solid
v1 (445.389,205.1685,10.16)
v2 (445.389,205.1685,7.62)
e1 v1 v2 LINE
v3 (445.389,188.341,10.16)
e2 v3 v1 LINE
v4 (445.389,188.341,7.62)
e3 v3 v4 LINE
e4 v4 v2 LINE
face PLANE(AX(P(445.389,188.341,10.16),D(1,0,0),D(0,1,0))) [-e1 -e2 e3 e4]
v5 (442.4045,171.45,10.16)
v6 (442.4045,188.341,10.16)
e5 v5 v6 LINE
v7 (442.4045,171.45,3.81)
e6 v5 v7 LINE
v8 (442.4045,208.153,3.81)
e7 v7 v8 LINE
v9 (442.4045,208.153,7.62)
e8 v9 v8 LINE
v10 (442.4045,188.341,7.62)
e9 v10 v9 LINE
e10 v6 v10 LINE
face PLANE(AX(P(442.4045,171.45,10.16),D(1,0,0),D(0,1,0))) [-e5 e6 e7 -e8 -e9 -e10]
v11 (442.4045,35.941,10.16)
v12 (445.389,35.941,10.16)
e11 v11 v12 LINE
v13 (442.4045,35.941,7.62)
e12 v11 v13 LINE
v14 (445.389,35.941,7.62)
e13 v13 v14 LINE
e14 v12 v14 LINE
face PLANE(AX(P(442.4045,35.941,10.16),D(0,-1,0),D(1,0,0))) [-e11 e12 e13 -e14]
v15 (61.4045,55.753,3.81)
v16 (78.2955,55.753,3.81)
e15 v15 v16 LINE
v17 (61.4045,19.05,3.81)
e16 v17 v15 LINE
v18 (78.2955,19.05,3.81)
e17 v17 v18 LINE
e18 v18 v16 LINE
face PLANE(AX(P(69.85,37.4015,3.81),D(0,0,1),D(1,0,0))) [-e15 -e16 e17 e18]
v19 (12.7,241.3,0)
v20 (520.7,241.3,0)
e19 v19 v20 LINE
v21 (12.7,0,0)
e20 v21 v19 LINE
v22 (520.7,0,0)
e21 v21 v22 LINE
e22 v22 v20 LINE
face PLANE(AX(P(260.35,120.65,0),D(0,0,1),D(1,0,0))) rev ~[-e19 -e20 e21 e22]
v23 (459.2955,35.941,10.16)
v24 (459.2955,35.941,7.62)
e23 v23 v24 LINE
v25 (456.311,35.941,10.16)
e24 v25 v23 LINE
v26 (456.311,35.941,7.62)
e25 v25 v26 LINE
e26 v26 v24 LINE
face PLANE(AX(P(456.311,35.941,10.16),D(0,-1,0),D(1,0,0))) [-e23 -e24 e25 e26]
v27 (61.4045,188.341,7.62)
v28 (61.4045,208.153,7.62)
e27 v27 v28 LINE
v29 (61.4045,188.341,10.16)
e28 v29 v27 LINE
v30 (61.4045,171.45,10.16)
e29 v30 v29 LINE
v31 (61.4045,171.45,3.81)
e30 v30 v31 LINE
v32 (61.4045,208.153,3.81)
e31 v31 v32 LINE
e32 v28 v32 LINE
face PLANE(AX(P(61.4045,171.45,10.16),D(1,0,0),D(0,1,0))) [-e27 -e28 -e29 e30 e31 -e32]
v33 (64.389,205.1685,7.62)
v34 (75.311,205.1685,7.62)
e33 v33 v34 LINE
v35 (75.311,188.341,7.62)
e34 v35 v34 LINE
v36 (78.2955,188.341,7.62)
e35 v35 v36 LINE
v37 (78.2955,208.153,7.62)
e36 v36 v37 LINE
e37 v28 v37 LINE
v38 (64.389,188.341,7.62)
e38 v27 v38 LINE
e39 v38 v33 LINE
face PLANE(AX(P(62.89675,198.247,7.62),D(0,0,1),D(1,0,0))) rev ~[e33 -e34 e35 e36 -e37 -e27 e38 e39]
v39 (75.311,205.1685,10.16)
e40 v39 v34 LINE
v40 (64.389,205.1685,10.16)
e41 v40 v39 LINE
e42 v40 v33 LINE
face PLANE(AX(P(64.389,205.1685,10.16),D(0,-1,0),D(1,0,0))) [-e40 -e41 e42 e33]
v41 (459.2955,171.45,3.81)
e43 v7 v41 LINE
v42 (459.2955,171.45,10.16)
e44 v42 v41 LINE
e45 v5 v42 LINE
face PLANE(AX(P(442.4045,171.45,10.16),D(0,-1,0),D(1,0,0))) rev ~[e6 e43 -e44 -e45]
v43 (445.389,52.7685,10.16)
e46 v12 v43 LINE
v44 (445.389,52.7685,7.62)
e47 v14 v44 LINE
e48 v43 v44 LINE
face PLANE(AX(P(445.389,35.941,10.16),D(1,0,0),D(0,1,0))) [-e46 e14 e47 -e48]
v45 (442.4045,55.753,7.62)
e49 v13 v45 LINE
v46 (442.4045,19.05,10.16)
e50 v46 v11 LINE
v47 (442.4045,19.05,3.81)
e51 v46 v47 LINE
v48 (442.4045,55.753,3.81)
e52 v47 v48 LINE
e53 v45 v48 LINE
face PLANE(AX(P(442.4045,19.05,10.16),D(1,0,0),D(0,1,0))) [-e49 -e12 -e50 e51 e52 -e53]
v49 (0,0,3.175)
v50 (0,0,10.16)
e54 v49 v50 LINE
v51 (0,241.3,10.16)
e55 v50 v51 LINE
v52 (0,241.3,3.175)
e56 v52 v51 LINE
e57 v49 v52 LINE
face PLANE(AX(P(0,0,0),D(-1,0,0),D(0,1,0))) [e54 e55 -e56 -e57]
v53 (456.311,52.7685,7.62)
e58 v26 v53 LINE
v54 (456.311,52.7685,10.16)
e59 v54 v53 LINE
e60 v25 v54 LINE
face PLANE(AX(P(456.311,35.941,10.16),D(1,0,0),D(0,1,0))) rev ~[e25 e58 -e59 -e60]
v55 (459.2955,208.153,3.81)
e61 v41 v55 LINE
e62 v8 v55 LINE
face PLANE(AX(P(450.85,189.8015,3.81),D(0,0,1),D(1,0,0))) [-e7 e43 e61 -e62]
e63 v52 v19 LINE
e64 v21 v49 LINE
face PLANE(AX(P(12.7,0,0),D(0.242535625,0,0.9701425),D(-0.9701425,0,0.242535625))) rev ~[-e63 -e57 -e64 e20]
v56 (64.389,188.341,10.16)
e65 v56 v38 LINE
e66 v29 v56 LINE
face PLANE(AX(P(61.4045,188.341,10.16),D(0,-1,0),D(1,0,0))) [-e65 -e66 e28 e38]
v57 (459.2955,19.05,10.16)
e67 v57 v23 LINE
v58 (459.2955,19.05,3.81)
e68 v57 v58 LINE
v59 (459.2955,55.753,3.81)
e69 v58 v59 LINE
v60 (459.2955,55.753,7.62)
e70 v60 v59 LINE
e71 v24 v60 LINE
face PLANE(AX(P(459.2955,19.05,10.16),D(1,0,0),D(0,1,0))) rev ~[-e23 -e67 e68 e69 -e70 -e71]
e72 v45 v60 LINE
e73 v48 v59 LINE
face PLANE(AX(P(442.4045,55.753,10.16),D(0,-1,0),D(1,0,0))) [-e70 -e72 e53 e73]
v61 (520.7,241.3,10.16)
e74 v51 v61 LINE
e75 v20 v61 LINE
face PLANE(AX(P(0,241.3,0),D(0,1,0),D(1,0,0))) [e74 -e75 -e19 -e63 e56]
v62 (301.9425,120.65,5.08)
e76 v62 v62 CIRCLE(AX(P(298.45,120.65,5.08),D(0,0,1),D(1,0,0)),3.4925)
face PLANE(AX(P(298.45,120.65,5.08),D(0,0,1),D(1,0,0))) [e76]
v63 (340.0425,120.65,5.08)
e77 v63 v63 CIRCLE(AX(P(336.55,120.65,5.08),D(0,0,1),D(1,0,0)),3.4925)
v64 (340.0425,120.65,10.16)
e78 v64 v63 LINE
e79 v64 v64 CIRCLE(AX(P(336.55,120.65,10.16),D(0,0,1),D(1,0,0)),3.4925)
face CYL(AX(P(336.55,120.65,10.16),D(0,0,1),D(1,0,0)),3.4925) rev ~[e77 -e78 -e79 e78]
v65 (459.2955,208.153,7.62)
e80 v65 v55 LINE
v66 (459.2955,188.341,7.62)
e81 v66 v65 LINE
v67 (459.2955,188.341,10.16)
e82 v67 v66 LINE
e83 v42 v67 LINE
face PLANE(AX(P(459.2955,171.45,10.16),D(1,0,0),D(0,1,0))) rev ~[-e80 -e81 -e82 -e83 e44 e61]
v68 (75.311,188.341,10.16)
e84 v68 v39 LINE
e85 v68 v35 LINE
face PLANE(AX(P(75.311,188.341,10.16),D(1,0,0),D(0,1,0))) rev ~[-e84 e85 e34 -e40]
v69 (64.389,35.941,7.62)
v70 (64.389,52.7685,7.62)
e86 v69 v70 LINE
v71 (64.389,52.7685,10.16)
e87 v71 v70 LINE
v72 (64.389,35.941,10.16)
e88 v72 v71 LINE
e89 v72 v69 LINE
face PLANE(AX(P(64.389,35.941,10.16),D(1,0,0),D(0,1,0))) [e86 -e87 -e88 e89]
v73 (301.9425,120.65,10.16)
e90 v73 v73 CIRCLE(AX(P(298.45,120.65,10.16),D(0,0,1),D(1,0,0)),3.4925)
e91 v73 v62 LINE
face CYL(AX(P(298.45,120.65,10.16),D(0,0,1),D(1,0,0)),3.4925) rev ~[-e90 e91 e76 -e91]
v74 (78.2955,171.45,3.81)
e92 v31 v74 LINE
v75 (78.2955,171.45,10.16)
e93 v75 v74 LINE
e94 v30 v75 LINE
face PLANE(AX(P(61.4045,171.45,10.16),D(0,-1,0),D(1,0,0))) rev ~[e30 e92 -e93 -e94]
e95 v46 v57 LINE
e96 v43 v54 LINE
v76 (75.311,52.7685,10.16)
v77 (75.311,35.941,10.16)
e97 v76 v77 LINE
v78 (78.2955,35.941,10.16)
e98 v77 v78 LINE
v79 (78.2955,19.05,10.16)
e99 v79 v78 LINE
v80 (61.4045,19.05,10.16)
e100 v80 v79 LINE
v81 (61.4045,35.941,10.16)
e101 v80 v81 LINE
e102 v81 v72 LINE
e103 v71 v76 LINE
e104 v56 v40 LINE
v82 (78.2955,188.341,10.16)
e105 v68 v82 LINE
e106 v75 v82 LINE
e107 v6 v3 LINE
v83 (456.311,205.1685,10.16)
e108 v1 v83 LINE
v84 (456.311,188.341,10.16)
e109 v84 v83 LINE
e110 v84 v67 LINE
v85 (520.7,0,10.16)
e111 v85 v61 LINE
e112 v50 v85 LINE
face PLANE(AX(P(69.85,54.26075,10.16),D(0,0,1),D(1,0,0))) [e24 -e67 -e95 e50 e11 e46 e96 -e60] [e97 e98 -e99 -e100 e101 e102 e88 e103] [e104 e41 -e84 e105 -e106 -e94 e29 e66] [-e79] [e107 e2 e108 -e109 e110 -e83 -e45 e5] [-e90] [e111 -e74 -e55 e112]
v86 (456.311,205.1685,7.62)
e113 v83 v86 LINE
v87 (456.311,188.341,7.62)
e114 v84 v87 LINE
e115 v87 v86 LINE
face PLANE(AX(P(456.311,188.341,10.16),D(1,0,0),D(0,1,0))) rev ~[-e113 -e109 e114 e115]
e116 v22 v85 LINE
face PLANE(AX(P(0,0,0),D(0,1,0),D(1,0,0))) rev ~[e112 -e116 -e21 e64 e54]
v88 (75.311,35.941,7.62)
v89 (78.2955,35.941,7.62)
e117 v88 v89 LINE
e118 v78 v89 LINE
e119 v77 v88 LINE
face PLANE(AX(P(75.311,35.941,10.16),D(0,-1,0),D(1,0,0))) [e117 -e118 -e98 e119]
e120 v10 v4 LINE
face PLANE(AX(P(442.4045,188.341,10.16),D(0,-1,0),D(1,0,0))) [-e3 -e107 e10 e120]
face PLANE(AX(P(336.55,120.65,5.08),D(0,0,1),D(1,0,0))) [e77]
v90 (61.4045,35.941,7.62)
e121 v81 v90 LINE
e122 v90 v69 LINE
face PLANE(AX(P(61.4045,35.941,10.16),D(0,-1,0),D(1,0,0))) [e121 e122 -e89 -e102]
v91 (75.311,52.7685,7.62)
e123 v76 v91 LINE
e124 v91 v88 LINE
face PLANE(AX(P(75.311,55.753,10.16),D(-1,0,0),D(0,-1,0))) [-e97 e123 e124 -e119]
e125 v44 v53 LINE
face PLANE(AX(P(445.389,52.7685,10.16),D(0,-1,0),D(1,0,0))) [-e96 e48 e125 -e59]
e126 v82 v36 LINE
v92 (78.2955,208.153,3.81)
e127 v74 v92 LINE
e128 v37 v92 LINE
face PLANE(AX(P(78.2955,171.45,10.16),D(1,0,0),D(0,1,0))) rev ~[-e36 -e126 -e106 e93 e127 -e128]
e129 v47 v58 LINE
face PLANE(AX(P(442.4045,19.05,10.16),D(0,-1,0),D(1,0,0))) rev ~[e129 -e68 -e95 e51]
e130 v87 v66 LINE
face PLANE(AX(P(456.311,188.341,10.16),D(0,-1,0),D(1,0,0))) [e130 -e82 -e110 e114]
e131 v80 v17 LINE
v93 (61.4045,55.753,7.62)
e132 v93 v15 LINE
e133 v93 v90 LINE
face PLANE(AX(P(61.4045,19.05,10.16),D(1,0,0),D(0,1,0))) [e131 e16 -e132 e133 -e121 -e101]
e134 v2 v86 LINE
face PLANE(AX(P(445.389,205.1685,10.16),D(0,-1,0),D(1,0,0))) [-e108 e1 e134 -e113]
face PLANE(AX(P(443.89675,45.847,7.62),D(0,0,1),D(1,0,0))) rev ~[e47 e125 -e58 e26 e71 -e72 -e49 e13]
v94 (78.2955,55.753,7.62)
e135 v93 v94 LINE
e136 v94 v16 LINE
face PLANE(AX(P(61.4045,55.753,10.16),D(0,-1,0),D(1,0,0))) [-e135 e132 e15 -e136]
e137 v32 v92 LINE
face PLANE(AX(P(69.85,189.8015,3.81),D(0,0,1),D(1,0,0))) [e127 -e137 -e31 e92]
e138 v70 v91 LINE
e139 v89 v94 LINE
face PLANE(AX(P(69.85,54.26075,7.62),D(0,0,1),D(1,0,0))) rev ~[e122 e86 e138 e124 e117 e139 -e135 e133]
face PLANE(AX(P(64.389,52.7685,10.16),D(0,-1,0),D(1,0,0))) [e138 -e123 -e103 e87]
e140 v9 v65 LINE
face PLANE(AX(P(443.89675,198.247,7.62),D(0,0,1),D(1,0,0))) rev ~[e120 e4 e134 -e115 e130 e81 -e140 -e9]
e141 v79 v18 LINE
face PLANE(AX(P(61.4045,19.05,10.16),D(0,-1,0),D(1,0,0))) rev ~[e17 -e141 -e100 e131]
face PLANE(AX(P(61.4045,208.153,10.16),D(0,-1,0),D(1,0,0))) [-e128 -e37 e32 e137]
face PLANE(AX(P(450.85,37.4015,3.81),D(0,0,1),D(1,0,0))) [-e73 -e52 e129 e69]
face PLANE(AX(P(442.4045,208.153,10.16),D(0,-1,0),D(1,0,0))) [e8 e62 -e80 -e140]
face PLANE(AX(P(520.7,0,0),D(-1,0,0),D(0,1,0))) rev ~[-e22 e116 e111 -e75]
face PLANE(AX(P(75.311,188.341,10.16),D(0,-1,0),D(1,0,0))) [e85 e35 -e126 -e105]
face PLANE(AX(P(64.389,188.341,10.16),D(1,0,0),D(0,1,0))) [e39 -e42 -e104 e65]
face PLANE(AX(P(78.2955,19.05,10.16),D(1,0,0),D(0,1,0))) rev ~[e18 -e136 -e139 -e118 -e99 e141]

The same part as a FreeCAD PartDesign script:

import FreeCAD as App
import Part
import Sketcher
from FreeCAD import Vector
Q = App.Units.Quantity


def add_polygon(sketch, points):
    """Adds a closed chain of lines whose ends are joined by coincident constraints."""
    first, n = sketch.GeometryCount, len(points)
    for a, b in zip(points, points[1:] + points[:1]):
        sketch.addGeometry(Part.LineSegment(App.Vector(*a, 0), App.Vector(*b, 0)), False)
    for i in range(n):
        sketch.addConstraint(Sketcher.Constraint("Coincident", first + i, 2, first + (i + 1) % n, 1))

doc = App.newDocument("Part")
body = doc.addObject("PartDesign::Body", "Body")

sketch1 = body.newObject("Sketcher::SketchObject", "Sketch")
sketch1.AttachmentSupport = (doc.getObject("XY_Plane"), [""])
sketch1.MapMode = "FlatFace"
add_polygon(sketch1, [(0, 241), (0, 0), (521, 0), (521, 241)])
sketch1.addConstraint(Sketcher.Constraint("Vertical", 0))
sketch1.addConstraint(Sketcher.Constraint("Horizontal", 1))
sketch1.addConstraint(Sketcher.Constraint("Vertical", 2))
sketch1.addConstraint(Sketcher.Constraint("Horizontal", 3))
sketch1.addConstraint(Sketcher.Constraint("Coincident", 0, 2, -1, 1))
sketch1.addConstraint(Sketcher.Constraint("DistanceX", 1, 1, 1, 2, Q("20.5 in")))
sketch1.addConstraint(Sketcher.Constraint("DistanceY", 0, 2, 0, 1, Q("9.5 in")))
pad1 = body.newObject("PartDesign::Pad", "Pad")
pad1.Profile = sketch1
pad1.Length = Q("0.4 in")

sketch2 = body.newObject("Sketcher::SketchObject", "Sketch001")
sketch2.AttachmentSupport = (doc.getObject("XY_Plane"), [""])
sketch2.MapMode = "FlatFace"
sketch2.AttachmentOffset = App.Placement(Vector(0, 0, 0.4 * 25.4), App.Rotation())
add_polygon(sketch2, [(61, 208), (61, 171), (78, 171), (78, 208)])
add_polygon(sketch2, [(61, 56), (61, 19), (78, 19), (78, 56)])
add_polygon(sketch2, [(442, 56), (442, 19), (459, 19), (459, 56)])
add_polygon(sketch2, [(442, 208), (442, 171), (459, 171), (459, 208)])
sketch2.addConstraint(Sketcher.Constraint("Vertical", 0))
sketch2.addConstraint(Sketcher.Constraint("Horizontal", 1))
sketch2.addConstraint(Sketcher.Constraint("Vertical", 2))
sketch2.addConstraint(Sketcher.Constraint("Horizontal", 3))
sketch2.addConstraint(Sketcher.Constraint("Vertical", 4))
sketch2.addConstraint(Sketcher.Constraint("Horizontal", 5))
sketch2.addConstraint(Sketcher.Constraint("Vertical", 6))
sketch2.addConstraint(Sketcher.Constraint("Horizontal", 7))
sketch2.addConstraint(Sketcher.Constraint("Vertical", 8))
sketch2.addConstraint(Sketcher.Constraint("Horizontal", 9))
sketch2.addConstraint(Sketcher.Constraint("Vertical", 10))
sketch2.addConstraint(Sketcher.Constraint("Horizontal", 11))
sketch2.addConstraint(Sketcher.Constraint("Vertical", 12))
sketch2.addConstraint(Sketcher.Constraint("Horizontal", 13))
sketch2.addConstraint(Sketcher.Constraint("Vertical", 14))
sketch2.addConstraint(Sketcher.Constraint("Horizontal", 15))
sketch2.addConstraint(Sketcher.Constraint("Horizontal", 5, 2, 8, 2))
sketch2.addConstraint(Sketcher.Constraint("Horizontal", 7, 2, 10, 2))
sketch2.addConstraint(Sketcher.Constraint("Horizontal", 1, 2, 12, 2))
sketch2.addConstraint(Sketcher.Constraint("Horizontal", 3, 2, 14, 2))
sketch2.addConstraint(Sketcher.Constraint("Vertical", 3, 2, 4, 2))
sketch2.addConstraint(Sketcher.Constraint("Vertical", 2, 2, 5, 2))
sketch2.addConstraint(Sketcher.Constraint("Vertical", 11, 2, 12, 2))
sketch2.addConstraint(Sketcher.Constraint("Vertical", 10, 2, 13, 2))
sketch2.addConstraint(Sketcher.Constraint("Equal", 7, 9))
sketch2.addConstraint(Sketcher.Constraint("Equal", 2, 4))
sketch2.addConstraint(Sketcher.Constraint("DistanceY", 4, 2, 0, 2, Q("6 in")))
sketch2.addConstraint(Sketcher.Constraint("DistanceX", 4, 2, 8, 2, Q("15 in")))
sketch2.addConstraint(Sketcher.Constraint("DistanceX", 1, 1, 1, 2, Q("0.665 in")))
sketch2.addConstraint(Sketcher.Constraint("DistanceY", 0, 2, 0, 1, Q("1.445 in")))
sketch2.addConstraint(Sketcher.Constraint("DistanceY", -1, 1, 0, 2, Q("6.75 in")))
sketch2.addConstraint(Sketcher.Constraint("DistanceX", -1, 1, 0, 2, Q("2.4175 in")))
pocket1 = body.newObject("PartDesign::Pocket", "Pocket")
pocket1.Profile = sketch2
pocket1.Length = Q("0.25 in")

sketch3 = body.newObject("Sketcher::SketchObject", "Sketch002")
sketch3.AttachmentSupport = (doc.getObject("XY_Plane"), [""])
sketch3.MapMode = "FlatFace"
sketch3.AttachmentOffset = App.Placement(Vector(0, 0, 0.4 * 25.4), App.Rotation())
add_polygon(sketch3, [(61.4, 208.2), (61.4, 188.3), (64.4, 188.3), (64.4, 208.2)])
add_polygon(sketch3, [(75.3, 208.2), (75.3, 188.3), (78.3, 188.3), (78.3, 208.2)])
add_polygon(sketch3, [(64.4, 55.8), (61.4, 55.8), (61.4, 35.9), (64.4, 35.9)])
add_polygon(sketch3, [(78.3, 55.8), (75.3, 55.8), (75.3, 35.9), (78.3, 35.9)])
add_polygon(sketch3, [(456.3, 55.8), (456.3, 35.9), (459.3, 35.9), (459.3, 55.8)])
add_polygon(sketch3, [(442.4, 55.8), (442.4, 35.9), (445.4, 35.9), (445.4, 55.8)])
add_polygon(sketch3, [(442.4, 208.2), (442.4, 188.3), (445.4, 188.3), (445.4, 208.2)])
add_polygon(sketch3, [(456.3, 208.2), (456.3, 188.3), (459.3, 188.3), (459.3, 208.2)])
sketch3.addConstraint(Sketcher.Constraint("Vertical", 0))
sketch3.addConstraint(Sketcher.Constraint("Horizontal", 1))
sketch3.addConstraint(Sketcher.Constraint("Vertical", 2))
sketch3.addConstraint(Sketcher.Constraint("Horizontal", 3))
sketch3.addConstraint(Sketcher.Constraint("Vertical", 4))
sketch3.addConstraint(Sketcher.Constraint("Horizontal", 5))
sketch3.addConstraint(Sketcher.Constraint("Vertical", 6))
sketch3.addConstraint(Sketcher.Constraint("Horizontal", 7))
sketch3.addConstraint(Sketcher.Constraint("Horizontal", 8))
sketch3.addConstraint(Sketcher.Constraint("Vertical", 9))
sketch3.addConstraint(Sketcher.Constraint("Horizontal", 10))
sketch3.addConstraint(Sketcher.Constraint("Vertical", 11))
sketch3.addConstraint(Sketcher.Constraint("Horizontal", 12))
sketch3.addConstraint(Sketcher.Constraint("Vertical", 13))
sketch3.addConstraint(Sketcher.Constraint("Horizontal", 14))
sketch3.addConstraint(Sketcher.Constraint("Vertical", 15))
sketch3.addConstraint(Sketcher.Constraint("Vertical", 16))
sketch3.addConstraint(Sketcher.Constraint("Horizontal", 17))
sketch3.addConstraint(Sketcher.Constraint("Vertical", 18))
sketch3.addConstraint(Sketcher.Constraint("Horizontal", 19))
sketch3.addConstraint(Sketcher.Constraint("Vertical", 20))
sketch3.addConstraint(Sketcher.Constraint("Horizontal", 21))
sketch3.addConstraint(Sketcher.Constraint("Vertical", 22))
sketch3.addConstraint(Sketcher.Constraint("Horizontal", 23))
sketch3.addConstraint(Sketcher.Constraint("Vertical", 24))
sketch3.addConstraint(Sketcher.Constraint("Horizontal", 25))
sketch3.addConstraint(Sketcher.Constraint("Vertical", 26))
sketch3.addConstraint(Sketcher.Constraint("Horizontal", 27))
sketch3.addConstraint(Sketcher.Constraint("Vertical", 28))
sketch3.addConstraint(Sketcher.Constraint("Horizontal", 29))
sketch3.addConstraint(Sketcher.Constraint("Vertical", 30))
sketch3.addConstraint(Sketcher.Constraint("Horizontal", 31))
sketch3.addConstraint(Sketcher.Constraint("Horizontal", 1, 2, 4, 2))
sketch3.addConstraint(Sketcher.Constraint("Horizontal", 3, 2, 6, 2))
sketch3.addConstraint(Sketcher.Constraint("Horizontal", 11, 2, 12, 2))
sketch3.addConstraint(Sketcher.Constraint("Horizontal", 10, 2, 13, 2))
sketch3.addConstraint(Sketcher.Constraint("Horizontal", 14, 2, 16, 2))
sketch3.addConstraint(Sketcher.Constraint("Horizontal", 15, 2, 18, 2))
sketch3.addConstraint(Sketcher.Constraint("Horizontal", 17, 2, 20, 2))
sketch3.addConstraint(Sketcher.Constraint("Horizontal", 19, 2, 22, 2))
sketch3.addConstraint(Sketcher.Constraint("Horizontal", 5, 2, 24, 2))
sketch3.addConstraint(Sketcher.Constraint("Horizontal", 7, 2, 26, 2))
sketch3.addConstraint(Sketcher.Constraint("Horizontal", 25, 2, 28, 2))
sketch3.addConstraint(Sketcher.Constraint("Horizontal", 27, 2, 30, 2))
sketch3.addConstraint(Sketcher.Constraint("Vertical", 3, 2, 8, 2))
sketch3.addConstraint(Sketcher.Constraint("Vertical", 2, 2, 10, 2))
sketch3.addConstraint(Sketcher.Constraint("Vertical", 7, 2, 12, 2))
sketch3.addConstraint(Sketcher.Constraint("Vertical", 6, 2, 14, 2))
sketch3.addConstraint(Sketcher.Constraint("Vertical", 23, 2, 24, 2))
sketch3.addConstraint(Sketcher.Constraint("Vertical", 22, 2, 25, 2))
sketch3.addConstraint(Sketcher.Constraint("Vertical", 19, 2, 28, 2))
sketch3.addConstraint(Sketcher.Constraint("Vertical", 18, 2, 29, 2))
sketch3.addConstraint(Sketcher.Constraint("Equal", 3, 5))
sketch3.addConstraint(Sketcher.Constraint("Equal", 14, 17))
sketch3.addConstraint(Sketcher.Constraint("Equal", 19, 21))
sketch3.addConstraint(Sketcher.Constraint("Equal", 6, 9))
sketch3.addConstraint(Sketcher.Constraint("DistanceY", 8, 2, 3, 2, Q("6 in")))
sketch3.addConstraint(Sketcher.Constraint("DistanceX", 13, 2, 16, 2, Q("15 in")))
sketch3.addConstraint(Sketcher.Constraint("DistanceY", 0, 2, 0, 1, Q("0.78 in")))
sketch3.addConstraint(Sketcher.Constraint("DistanceX", 1, 2, 4, 2, Q("0.43 in")))
sketch3.addConstraint(Sketcher.Constraint("DistanceX", 21, 2, 16, 2, Q("0.43 in")))
sketch3.addConstraint(Sketcher.Constraint("DistanceX", 1, 1, 1, 2, Q("0.1175 in")))
sketch3.addConstraint(Sketcher.Constraint("DistanceY", -1, 1, 0, 2, Q("7.415 in")))
sketch3.addConstraint(Sketcher.Constraint("DistanceX", -1, 1, 1, 2, Q("2.535 in")))
pad2 = body.newObject("PartDesign::Pad", "Pad001")
pad2.Profile = sketch3
pad2.Length = Q("0.1 in")
pad2.Reversed = True

sketch4 = body.newObject("Sketcher::SketchObject", "Sketch003")
sketch4.AttachmentSupport = (doc.getObject("XY_Plane"), [""])
sketch4.MapMode = "FlatFace"
sketch4.AttachmentOffset = App.Placement(Vector(0, 0, 0.4 * 25.4), App.Rotation())
add_polygon(sketch4, [(64.4, 55.8), (64.4, 52.8), (75.3, 52.8), (75.3, 55.8)])
add_polygon(sketch4, [(64.4, 208.2), (64.4, 205.2), (75.3, 205.2), (75.3, 208.2)])
add_polygon(sketch4, [(445.4, 55.8), (445.4, 52.8), (456.3, 52.8), (456.3, 55.8)])
add_polygon(sketch4, [(445.4, 208.2), (445.4, 205.2), (456.3, 205.2), (456.3, 208.2)])
sketch4.addConstraint(Sketcher.Constraint("Vertical", 0))
sketch4.addConstraint(Sketcher.Constraint("Horizontal", 1))
sketch4.addConstraint(Sketcher.Constraint("Vertical", 2))
sketch4.addConstraint(Sketcher.Constraint("Horizontal", 3))
sketch4.addConstraint(Sketcher.Constraint("Vertical", 4))
sketch4.addConstraint(Sketcher.Constraint("Horizontal", 5))
sketch4.addConstraint(Sketcher.Constraint("Vertical", 6))
sketch4.addConstraint(Sketcher.Constraint("Horizontal", 7))
sketch4.addConstraint(Sketcher.Constraint("Vertical", 8))
sketch4.addConstraint(Sketcher.Constraint("Horizontal", 9))
sketch4.addConstraint(Sketcher.Constraint("Vertical", 10))
sketch4.addConstraint(Sketcher.Constraint("Horizontal", 11))
sketch4.addConstraint(Sketcher.Constraint("Vertical", 12))
sketch4.addConstraint(Sketcher.Constraint("Horizontal", 13))
sketch4.addConstraint(Sketcher.Constraint("Vertical", 14))
sketch4.addConstraint(Sketcher.Constraint("Horizontal", 15))
sketch4.addConstraint(Sketcher.Constraint("Horizontal", 1, 2, 8, 2))
sketch4.addConstraint(Sketcher.Constraint("Horizontal", 3, 2, 10, 2))
sketch4.addConstraint(Sketcher.Constraint("Horizontal", 5, 2, 12, 2))
sketch4.addConstraint(Sketcher.Constraint("Horizontal", 7, 2, 14, 2))
sketch4.addConstraint(Sketcher.Constraint("Vertical", 3, 2, 4, 2))
sketch4.addConstraint(Sketcher.Constraint("Vertical", 2, 2, 5, 2))
sketch4.addConstraint(Sketcher.Constraint("Vertical", 11, 2, 12, 2))
sketch4.addConstraint(Sketcher.Constraint("Vertical", 10, 2, 13, 2))
sketch4.addConstraint(Sketcher.Constraint("Equal", 7, 9))
sketch4.addConstraint(Sketcher.Constraint("Equal", 2, 4))
sketch4.addConstraint(Sketcher.Constraint("DistanceY", 0, 2, 4, 2, Q("6 in")))
sketch4.addConstraint(Sketcher.Constraint("DistanceX", 0, 2, 8, 2, Q("15 in")))
sketch4.addConstraint(Sketcher.Constraint("DistanceX", 1, 1, 1, 2, Q("0.43 in")))
sketch4.addConstraint(Sketcher.Constraint("DistanceY", 0, 2, 0, 1, Q("0.1175 in")))
sketch4.addConstraint(Sketcher.Constraint("DistanceX", -1, 1, 0, 2, Q("2.535 in")))
sketch4.addConstraint(Sketcher.Constraint("DistanceY", -1, 1, 2, 2, Q("2.195 in")))
pad3 = body.newObject("PartDesign::Pad", "Pad002")
pad3.Profile = sketch4
pad3.Length = Q("0.1 in")
pad3.Reversed = True

sketch5 = body.newObject("Sketcher::SketchObject", "Sketch004")
sketch5.AttachmentSupport = (doc.getObject("XY_Plane"), [""])
sketch5.MapMode = "FlatFace"
sketch5.AttachmentOffset = App.Placement(Vector(0, 0, 0.4 * 25.4), App.Rotation())
sketch5.addGeometry(Part.Circle(Vector(298.4, 120.7, 0), Vector(0, 0, 1), 3.5), False)
sketch5.addGeometry(Part.Circle(Vector(336.6, 120.7, 0), Vector(0, 0, 1), 3.5), False)
sketch5.addConstraint(Sketcher.Constraint("Equal", 0, 1))
sketch5.addConstraint(Sketcher.Constraint("Horizontal", 0, 3, 1, 3))
sketch5.addConstraint(Sketcher.Constraint("Diameter", 0, Q("0.275 in")))
sketch5.addConstraint(Sketcher.Constraint("DistanceX", 0, 3, 1, 3, Q("1.5 in")))
sketch5.addConstraint(Sketcher.Constraint("DistanceX", -1, 1, 0, 3, Q("11.75 in")))
sketch5.addConstraint(Sketcher.Constraint("DistanceY", -1, 1, 0, 3, Q("4.75 in")))
pocket2 = body.newObject("PartDesign::Pocket", "Pocket001")
pocket2.Profile = sketch5
pocket2.Length = Q("0.2 in")

sketch6 = body.newObject("Sketcher::SketchObject", "Sketch005")
sketch6.AttachmentSupport = (doc.getObject("XZ_Plane"), [""])
sketch6.MapMode = "FlatFace"
add_polygon(sketch6, [(12.7, 0), (0, 3.2), (0, 0)])
sketch6.addConstraint(Sketcher.Constraint("Vertical", 1))
sketch6.addConstraint(Sketcher.Constraint("Horizontal", 2))
sketch6.addConstraint(Sketcher.Constraint("Coincident", 1, 2, -1, 1))
sketch6.addConstraint(Sketcher.Constraint("DistanceX", 2, 1, 2, 2, Q("0.5 in")))
sketch6.addConstraint(Sketcher.Constraint("DistanceY", 1, 2, 1, 1, Q("0.125 in")))
pocket3 = body.newObject("PartDesign::Pocket", "Pocket002")
pocket3.Profile = sketch6
pocket3.Length = Q("10 in")

doc.recompute()
